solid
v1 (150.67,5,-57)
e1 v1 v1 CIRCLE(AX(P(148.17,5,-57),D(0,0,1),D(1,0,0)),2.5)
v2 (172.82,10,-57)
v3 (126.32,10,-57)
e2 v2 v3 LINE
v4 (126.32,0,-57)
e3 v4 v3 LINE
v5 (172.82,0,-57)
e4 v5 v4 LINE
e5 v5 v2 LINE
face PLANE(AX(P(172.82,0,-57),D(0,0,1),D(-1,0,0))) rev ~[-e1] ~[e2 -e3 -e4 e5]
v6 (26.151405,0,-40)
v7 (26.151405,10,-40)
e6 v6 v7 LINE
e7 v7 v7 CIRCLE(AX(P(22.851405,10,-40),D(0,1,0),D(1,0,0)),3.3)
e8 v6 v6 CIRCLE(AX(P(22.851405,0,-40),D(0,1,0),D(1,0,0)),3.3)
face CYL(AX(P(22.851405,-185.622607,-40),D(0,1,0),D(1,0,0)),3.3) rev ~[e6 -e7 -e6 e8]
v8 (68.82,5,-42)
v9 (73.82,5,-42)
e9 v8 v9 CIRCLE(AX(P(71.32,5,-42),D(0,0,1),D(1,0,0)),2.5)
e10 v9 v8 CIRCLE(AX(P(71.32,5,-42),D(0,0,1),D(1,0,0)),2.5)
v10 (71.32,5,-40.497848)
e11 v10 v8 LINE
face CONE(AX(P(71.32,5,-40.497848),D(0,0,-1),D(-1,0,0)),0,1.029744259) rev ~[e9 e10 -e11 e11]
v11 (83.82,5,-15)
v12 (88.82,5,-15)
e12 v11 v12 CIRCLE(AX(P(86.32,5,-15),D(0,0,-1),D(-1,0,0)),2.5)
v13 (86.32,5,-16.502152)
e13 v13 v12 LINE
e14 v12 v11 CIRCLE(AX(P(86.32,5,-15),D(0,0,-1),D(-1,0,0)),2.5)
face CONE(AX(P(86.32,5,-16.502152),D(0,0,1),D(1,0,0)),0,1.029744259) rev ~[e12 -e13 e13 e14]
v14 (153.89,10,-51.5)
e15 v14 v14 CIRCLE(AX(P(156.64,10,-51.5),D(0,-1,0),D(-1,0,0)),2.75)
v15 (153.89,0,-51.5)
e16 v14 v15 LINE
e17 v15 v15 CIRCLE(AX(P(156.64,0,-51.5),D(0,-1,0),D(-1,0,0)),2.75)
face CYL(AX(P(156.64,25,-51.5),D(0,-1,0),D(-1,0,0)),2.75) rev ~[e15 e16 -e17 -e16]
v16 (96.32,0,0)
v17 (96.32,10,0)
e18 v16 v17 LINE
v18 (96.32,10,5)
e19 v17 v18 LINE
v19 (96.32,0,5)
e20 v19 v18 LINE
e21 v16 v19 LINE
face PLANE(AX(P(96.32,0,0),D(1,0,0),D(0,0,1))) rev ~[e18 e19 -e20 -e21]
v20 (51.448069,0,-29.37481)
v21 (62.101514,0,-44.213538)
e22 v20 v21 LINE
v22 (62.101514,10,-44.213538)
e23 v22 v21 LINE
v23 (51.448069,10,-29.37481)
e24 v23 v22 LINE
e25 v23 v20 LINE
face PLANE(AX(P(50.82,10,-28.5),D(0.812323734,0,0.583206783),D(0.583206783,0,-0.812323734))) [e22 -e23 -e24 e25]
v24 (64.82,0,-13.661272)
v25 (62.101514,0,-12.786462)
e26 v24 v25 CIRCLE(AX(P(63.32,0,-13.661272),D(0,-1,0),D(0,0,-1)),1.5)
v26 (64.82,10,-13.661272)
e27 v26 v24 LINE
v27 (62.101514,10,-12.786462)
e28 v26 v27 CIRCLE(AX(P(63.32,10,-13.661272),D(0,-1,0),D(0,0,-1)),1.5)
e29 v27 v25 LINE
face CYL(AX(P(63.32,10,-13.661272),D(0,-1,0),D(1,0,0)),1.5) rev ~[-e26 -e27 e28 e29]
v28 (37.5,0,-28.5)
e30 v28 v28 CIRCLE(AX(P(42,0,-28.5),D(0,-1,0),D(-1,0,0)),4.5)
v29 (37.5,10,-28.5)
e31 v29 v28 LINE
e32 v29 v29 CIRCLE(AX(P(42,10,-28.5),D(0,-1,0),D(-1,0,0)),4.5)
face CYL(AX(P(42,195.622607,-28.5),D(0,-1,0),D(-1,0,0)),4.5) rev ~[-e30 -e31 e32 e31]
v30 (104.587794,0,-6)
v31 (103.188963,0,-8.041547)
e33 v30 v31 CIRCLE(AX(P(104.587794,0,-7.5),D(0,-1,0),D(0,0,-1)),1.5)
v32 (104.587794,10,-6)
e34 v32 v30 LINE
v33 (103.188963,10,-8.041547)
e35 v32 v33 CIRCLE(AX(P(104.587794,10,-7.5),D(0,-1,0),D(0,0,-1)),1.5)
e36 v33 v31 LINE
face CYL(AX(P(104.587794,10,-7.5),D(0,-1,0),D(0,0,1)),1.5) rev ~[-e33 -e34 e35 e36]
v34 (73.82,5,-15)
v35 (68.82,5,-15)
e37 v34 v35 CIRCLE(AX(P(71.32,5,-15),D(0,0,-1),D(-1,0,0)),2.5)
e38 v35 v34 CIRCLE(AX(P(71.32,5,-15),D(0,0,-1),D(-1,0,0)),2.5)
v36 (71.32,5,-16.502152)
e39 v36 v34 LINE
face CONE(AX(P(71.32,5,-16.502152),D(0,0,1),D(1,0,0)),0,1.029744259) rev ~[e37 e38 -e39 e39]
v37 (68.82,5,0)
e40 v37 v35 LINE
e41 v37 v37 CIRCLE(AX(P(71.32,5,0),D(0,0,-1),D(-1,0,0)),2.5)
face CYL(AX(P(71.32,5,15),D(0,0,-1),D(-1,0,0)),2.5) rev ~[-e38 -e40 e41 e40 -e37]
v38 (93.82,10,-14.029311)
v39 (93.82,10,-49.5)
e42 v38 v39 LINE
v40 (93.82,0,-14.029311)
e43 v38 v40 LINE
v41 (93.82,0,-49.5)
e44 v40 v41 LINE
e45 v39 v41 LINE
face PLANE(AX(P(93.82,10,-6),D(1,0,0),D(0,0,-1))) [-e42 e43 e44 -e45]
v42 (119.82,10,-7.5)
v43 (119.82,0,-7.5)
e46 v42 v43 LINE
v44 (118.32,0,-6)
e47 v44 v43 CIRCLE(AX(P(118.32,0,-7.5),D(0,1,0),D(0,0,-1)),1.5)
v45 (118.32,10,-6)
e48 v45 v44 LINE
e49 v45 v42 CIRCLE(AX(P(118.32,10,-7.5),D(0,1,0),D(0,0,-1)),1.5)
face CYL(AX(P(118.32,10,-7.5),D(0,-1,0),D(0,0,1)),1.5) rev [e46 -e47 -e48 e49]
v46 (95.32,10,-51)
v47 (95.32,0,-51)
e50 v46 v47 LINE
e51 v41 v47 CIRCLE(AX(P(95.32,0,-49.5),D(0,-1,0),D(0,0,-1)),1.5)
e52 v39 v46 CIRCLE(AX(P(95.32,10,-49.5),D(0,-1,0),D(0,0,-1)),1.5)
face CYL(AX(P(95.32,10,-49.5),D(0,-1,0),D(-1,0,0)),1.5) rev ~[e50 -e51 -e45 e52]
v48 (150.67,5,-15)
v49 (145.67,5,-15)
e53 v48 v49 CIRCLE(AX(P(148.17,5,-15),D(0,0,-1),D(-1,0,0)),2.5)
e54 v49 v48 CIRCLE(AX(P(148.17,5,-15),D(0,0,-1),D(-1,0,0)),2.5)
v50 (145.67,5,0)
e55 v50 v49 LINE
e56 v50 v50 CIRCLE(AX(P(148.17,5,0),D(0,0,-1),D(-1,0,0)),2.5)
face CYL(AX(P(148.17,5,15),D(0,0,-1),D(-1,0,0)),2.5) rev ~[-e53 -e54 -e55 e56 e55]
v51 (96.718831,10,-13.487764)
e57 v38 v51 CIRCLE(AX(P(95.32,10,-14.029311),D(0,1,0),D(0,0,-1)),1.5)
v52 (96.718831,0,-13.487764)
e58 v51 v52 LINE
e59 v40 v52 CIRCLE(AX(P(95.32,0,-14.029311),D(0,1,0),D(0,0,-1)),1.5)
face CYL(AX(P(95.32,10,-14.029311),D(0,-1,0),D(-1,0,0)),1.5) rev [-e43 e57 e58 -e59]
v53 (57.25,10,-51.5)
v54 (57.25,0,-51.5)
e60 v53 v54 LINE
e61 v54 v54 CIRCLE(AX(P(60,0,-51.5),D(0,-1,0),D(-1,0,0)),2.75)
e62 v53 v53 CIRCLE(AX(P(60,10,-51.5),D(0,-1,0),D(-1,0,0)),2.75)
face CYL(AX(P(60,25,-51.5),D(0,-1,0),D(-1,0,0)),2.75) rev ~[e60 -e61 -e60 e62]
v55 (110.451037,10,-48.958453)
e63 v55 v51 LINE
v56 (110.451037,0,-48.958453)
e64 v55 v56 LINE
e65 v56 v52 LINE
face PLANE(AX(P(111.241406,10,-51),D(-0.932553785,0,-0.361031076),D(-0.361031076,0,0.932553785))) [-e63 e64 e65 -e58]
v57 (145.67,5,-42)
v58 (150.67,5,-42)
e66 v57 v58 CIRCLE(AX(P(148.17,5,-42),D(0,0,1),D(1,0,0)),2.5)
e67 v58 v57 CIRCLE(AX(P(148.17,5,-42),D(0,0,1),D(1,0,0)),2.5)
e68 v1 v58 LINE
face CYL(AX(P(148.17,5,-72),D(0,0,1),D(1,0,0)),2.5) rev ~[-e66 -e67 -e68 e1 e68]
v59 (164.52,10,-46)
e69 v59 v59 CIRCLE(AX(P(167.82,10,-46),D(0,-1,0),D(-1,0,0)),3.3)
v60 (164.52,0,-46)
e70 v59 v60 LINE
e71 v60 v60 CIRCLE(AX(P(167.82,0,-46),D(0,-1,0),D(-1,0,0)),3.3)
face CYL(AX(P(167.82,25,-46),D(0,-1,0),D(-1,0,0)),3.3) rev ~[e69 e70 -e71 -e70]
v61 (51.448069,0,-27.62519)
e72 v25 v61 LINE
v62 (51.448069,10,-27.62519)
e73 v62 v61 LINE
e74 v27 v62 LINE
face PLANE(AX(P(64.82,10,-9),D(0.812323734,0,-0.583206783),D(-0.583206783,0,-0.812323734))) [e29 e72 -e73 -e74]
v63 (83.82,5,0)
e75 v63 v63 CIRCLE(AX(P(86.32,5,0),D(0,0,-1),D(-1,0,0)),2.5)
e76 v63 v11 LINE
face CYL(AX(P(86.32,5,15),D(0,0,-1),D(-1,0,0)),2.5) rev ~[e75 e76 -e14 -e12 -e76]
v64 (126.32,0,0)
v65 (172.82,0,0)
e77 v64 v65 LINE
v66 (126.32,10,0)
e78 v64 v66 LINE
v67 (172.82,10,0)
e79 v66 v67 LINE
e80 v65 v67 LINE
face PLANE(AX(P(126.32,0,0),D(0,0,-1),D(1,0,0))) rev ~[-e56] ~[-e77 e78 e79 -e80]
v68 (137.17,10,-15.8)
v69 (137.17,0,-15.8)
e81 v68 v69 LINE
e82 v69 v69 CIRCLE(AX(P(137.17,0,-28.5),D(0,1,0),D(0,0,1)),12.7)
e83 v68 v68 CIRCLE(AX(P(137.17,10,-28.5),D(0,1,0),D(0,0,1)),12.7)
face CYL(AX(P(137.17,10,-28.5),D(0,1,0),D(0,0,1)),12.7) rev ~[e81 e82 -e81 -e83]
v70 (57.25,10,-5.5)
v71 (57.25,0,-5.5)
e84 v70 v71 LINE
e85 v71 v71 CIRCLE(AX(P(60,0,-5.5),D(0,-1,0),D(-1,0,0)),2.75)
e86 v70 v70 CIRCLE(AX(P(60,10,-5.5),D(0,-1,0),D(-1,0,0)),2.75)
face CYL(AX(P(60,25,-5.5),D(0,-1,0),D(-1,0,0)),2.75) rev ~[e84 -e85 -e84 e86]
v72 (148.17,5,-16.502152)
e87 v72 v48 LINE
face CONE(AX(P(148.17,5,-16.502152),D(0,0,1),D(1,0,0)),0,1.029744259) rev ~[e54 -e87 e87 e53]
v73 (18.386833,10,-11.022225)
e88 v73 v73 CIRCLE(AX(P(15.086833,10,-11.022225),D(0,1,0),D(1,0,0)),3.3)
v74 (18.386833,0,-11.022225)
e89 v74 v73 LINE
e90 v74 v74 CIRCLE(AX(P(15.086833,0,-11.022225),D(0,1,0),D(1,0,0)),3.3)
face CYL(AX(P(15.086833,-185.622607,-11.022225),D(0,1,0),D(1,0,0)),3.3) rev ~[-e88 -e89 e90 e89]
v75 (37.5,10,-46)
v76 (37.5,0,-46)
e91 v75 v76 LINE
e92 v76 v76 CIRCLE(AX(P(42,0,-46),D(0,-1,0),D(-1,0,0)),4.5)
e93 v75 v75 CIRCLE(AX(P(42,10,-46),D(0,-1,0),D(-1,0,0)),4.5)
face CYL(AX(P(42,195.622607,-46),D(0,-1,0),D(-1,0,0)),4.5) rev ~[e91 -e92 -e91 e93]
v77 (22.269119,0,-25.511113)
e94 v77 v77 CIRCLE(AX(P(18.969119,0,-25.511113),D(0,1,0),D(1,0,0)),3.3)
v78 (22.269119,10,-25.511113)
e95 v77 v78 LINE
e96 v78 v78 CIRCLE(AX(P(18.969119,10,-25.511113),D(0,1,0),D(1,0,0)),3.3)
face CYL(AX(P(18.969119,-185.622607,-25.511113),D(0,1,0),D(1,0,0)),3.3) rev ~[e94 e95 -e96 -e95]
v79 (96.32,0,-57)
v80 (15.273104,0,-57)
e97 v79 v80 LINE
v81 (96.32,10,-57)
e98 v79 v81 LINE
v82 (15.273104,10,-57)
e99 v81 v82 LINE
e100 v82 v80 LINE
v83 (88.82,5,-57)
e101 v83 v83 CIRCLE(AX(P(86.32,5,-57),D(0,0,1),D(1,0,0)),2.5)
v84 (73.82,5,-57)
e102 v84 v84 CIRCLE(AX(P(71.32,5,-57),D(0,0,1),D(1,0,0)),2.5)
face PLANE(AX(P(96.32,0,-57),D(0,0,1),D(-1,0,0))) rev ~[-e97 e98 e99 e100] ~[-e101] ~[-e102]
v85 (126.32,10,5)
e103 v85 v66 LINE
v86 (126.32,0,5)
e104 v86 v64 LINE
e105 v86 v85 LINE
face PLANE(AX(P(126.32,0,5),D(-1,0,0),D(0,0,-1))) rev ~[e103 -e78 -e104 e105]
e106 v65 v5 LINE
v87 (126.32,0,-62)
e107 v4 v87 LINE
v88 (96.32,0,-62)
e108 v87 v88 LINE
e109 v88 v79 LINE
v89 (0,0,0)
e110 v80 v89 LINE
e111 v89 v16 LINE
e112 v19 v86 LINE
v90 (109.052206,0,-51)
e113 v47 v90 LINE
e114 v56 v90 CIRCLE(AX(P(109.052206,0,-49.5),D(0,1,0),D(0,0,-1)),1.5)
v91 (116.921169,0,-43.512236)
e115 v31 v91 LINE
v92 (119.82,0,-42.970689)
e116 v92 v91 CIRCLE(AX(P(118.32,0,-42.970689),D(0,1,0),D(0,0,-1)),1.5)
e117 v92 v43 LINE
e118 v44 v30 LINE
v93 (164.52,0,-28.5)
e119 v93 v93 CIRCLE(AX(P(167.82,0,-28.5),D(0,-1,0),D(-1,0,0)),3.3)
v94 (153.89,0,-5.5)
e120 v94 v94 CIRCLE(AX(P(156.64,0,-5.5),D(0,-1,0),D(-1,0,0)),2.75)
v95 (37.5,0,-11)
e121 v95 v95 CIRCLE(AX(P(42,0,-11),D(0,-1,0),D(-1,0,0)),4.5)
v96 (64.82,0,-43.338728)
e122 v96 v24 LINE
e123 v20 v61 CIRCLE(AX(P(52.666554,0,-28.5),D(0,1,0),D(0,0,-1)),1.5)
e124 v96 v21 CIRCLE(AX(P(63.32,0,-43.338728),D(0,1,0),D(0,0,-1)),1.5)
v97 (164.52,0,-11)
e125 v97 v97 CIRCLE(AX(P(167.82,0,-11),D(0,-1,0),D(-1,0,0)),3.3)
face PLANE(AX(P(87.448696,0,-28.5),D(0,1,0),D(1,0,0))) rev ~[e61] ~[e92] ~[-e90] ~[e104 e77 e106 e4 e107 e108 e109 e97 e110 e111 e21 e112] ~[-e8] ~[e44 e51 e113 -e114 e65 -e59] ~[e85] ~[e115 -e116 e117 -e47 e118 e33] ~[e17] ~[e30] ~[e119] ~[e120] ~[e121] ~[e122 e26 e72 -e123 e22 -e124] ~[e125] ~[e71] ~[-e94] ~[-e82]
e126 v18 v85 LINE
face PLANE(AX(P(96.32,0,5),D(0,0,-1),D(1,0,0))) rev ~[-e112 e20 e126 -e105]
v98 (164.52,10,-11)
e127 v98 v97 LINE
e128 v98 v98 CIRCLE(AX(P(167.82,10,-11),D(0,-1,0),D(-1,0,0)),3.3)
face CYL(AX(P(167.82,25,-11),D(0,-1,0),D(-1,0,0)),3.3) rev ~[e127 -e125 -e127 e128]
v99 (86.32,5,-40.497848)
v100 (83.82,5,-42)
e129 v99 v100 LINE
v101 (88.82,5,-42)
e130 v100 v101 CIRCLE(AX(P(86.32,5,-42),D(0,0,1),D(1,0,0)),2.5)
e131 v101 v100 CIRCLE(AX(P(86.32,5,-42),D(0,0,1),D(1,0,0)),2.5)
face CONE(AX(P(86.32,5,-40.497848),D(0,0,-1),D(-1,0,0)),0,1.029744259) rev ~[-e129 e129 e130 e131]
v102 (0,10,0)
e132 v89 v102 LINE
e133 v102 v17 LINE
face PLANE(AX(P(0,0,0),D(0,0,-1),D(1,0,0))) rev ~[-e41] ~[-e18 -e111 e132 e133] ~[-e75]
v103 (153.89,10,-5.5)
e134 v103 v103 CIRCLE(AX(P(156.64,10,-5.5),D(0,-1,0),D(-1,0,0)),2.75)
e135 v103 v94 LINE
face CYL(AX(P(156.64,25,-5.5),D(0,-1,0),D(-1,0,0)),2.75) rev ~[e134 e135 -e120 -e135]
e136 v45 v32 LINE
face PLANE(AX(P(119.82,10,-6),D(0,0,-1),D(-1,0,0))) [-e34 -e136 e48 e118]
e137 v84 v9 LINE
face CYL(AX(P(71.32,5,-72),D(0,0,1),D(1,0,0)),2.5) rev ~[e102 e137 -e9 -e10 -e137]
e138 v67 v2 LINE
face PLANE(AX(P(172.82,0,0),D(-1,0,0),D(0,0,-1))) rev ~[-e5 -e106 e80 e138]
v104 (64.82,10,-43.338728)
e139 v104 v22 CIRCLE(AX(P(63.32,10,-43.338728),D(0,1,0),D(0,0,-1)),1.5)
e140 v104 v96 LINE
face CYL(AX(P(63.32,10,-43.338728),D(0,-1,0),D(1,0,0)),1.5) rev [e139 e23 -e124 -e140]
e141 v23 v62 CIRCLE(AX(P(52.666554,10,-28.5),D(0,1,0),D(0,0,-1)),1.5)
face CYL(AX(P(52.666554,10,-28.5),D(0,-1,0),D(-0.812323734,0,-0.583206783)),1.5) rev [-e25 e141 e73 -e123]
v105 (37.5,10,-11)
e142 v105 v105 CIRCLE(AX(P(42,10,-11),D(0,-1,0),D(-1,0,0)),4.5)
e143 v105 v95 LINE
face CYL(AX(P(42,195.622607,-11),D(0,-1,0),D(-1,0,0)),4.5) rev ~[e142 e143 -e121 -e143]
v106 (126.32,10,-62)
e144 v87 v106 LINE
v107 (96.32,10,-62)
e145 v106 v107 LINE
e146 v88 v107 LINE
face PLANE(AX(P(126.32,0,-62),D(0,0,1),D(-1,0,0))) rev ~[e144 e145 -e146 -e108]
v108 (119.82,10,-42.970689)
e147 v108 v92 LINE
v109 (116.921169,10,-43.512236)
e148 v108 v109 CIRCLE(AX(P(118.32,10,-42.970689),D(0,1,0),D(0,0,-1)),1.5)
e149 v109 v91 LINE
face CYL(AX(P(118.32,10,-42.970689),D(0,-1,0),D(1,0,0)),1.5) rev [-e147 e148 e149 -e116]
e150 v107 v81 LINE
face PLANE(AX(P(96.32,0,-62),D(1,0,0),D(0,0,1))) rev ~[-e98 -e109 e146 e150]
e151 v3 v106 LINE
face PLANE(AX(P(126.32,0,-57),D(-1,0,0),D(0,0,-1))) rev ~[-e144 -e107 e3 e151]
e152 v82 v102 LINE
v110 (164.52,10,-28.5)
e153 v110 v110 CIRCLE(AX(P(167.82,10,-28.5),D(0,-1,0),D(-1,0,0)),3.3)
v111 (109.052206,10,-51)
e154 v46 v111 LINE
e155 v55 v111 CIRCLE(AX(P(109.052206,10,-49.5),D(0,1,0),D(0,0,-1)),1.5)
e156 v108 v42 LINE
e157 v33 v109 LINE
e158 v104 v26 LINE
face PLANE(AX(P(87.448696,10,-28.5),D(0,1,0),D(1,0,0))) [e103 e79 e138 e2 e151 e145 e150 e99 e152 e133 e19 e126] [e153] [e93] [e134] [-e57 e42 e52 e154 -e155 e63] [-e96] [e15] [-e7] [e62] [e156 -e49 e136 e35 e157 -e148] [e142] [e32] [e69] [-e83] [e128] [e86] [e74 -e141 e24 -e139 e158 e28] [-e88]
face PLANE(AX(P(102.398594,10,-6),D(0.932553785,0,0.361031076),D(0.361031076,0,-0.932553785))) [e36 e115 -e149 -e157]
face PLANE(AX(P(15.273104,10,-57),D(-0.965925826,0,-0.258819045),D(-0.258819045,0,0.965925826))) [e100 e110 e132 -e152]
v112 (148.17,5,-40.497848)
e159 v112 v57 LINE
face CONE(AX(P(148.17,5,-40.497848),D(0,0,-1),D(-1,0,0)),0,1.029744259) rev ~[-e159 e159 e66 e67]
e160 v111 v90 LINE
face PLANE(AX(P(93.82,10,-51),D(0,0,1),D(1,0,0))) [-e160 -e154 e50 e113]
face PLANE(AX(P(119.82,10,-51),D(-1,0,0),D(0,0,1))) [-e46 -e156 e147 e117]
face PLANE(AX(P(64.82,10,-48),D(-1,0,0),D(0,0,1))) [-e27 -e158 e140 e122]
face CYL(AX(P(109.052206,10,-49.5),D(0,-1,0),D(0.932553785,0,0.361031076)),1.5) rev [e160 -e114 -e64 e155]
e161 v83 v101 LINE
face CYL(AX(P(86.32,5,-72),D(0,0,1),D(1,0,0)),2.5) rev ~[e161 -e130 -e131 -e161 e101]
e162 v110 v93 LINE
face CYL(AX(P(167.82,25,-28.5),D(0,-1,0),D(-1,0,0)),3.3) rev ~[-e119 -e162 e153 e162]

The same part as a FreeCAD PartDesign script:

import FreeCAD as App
import Part
import Sketcher
Q = App.Units.Quantity


def edges_at(feature, points):
    """Names of the edges that pass closest to the given points."""
    edges = feature.Shape.Edges
    near = lambda p: min(range(len(edges)), key=lambda i: edges[i].distToShape(Part.Vertex(*p))[0])
    return sorted({f"Edge{near(p) + 1}" for p in points})

doc = App.newDocument("Part")
params = doc.addObject("Spreadsheet::Sheet", "Params")
for row, (alias, value) in enumerate([
    ("sketch1_width", "30 mm"),
    ("sketch1_height", "5 mm"),
    ("sketch1_height2", "57 mm"),
    ("sketch1_width2", "46.5 mm"),
    ("sketch1_width3", "96.32 mm"),
    ("pad1_length", "10 mm"),
    ("sketch2_diameter", "6.6 mm"),
    ("hole_diameter", "6.6 mm"),
    ("hole_depth", "15 mm"),
    ("sketch3_diameter", "19.05 mm"),
    ("sketch4_diameter", "25.4 mm"),
    ("sketch5_diameter", "5 mm"),
    ("hole2_diameter", "5 mm"),
    ("hole2_depth", "15 mm"),
    ("sketch6_diameter", "5 mm"),
    ("hole3_diameter", "5 mm"),
    ("hole3_depth", "15 mm"),
    ("sketch7_diameter", "9 mm"),
    ("hole4_diameter", "9 mm"),
    ("sketch8_diameter", "5.5 mm"),
    ("hole5_diameter", "5.5 mm"),
    ("hole5_depth", "15 mm"),
    ("sketch9_height", "57 mm"),
    ("sketch10_diameter", "6.6 mm"),
    ("hole6_diameter", "6.6 mm"),
    ("sketch11_height", "39 mm"),
    ("sketch11_height2", "45 mm"),
    ("fillet_radius", "1.5 mm"),
], start=1):
    params.set(f"A{row}", alias)
    params.set(f"B{row}", "=" + value)
    params.setAlias(f"B{row}", alias)

body = doc.addObject("PartDesign::Body", "Body")

# Sketch on XZ plane
sketch1 = body.newObject("Sketcher::SketchObject", "Sketch")
sketch1.AttachmentSupport = (doc.getObject("XZ_Plane"), [""])
sketch1.MapMode = "FlatFace"
sketch1.addGeometry(Part.LineSegment(App.Vector(0, 0, 0), App.Vector(96, 0, 0)), False)
sketch1.addGeometry(Part.LineSegment(App.Vector(96, 0, 0), App.Vector(96, 5, 0)), False)
sketch1.addGeometry(Part.LineSegment(App.Vector(96, 5, 0), App.Vector(126, 5, 0)), False)
sketch1.addGeometry(Part.LineSegment(App.Vector(126, 5, 0), App.Vector(126, 0, 0)), False)
sketch1.addGeometry(Part.LineSegment(App.Vector(126, 0, 0), App.Vector(173, 0, 0)), False)
sketch1.addGeometry(Part.LineSegment(App.Vector(173, 0, 0), App.Vector(173, -57, 0)), False)
sketch1.addGeometry(Part.LineSegment(App.Vector(173, -57, 0), App.Vector(126, -57, 0)), False)
sketch1.addGeometry(Part.LineSegment(App.Vector(126, -57, 0), App.Vector(126, -62, 0)), False)
sketch1.addGeometry(Part.LineSegment(App.Vector(126, -62, 0), App.Vector(96, -62, 0)), False)
sketch1.addGeometry(Part.LineSegment(App.Vector(96, -62, 0), App.Vector(96, -57, 0)), False)
sketch1.addGeometry(Part.LineSegment(App.Vector(96, -57, 0), App.Vector(0, -57, 0)), False)
sketch1.addGeometry(Part.LineSegment(App.Vector(0, -57, 0), App.Vector(0, 0, 0)), False)
sketch1.addConstraint(Sketcher.Constraint("Coincident", 0, 2, 1, 1))
sketch1.addConstraint(Sketcher.Constraint("Coincident", 1, 2, 2, 1))
sketch1.addConstraint(Sketcher.Constraint("Coincident", 2, 2, 3, 1))
sketch1.addConstraint(Sketcher.Constraint("Coincident", 3, 2, 4, 1))
sketch1.addConstraint(Sketcher.Constraint("Coincident", 4, 2, 5, 1))
sketch1.addConstraint(Sketcher.Constraint("Coincident", 5, 2, 6, 1))
sketch1.addConstraint(Sketcher.Constraint("Coincident", 6, 2, 7, 1))
sketch1.addConstraint(Sketcher.Constraint("Coincident", 7, 2, 8, 1))
sketch1.addConstraint(Sketcher.Constraint("Coincident", 8, 2, 9, 1))
sketch1.addConstraint(Sketcher.Constraint("Coincident", 9, 2, 10, 1))
sketch1.addConstraint(Sketcher.Constraint("Coincident", 10, 2, 11, 1))
sketch1.addConstraint(Sketcher.Constraint("Coincident", 11, 2, 0, 1))
sketch1.addConstraint(Sketcher.Constraint("Horizontal", 0))
sketch1.addConstraint(Sketcher.Constraint("Vertical", 1))
sketch1.addConstraint(Sketcher.Constraint("Horizontal", 2))
sketch1.addConstraint(Sketcher.Constraint("Vertical", 3))
sketch1.addConstraint(Sketcher.Constraint("Horizontal", 4))
sketch1.addConstraint(Sketcher.Constraint("Vertical", 5))
sketch1.addConstraint(Sketcher.Constraint("Horizontal", 6))
sketch1.addConstraint(Sketcher.Constraint("Vertical", 7))
sketch1.addConstraint(Sketcher.Constraint("Horizontal", 8))
sketch1.addConstraint(Sketcher.Constraint("Vertical", 9))
sketch1.addConstraint(Sketcher.Constraint("Horizontal", 10))
sketch1.addConstraint(Sketcher.Constraint("Vertical", 11))
sketch1.addConstraint(Sketcher.Constraint("Coincident", 11, 2, -1, 1))
sketch1.addConstraint(Sketcher.Constraint("PointOnObject", 3, 2, -1))
sketch1.addConstraint(Sketcher.Constraint("Horizontal", 6, 2, 9, 2))
sketch1.addConstraint(Sketcher.Constraint("Vertical", 3, 2, 6, 2))
sketch1.addConstraint(Sketcher.Constraint("Vertical", 1, 2, 8, 2))
sketch1.addConstraint(Sketcher.Constraint("Equal", 3, 7))
sketch1.addConstraint(Sketcher.Constraint("DistanceX", 2, 1, 2, 2, 30.0))
sketch1.addConstraint(Sketcher.Constraint("DistanceY", 1, 1, 1, 2, 5.0))
sketch1.addConstraint(Sketcher.Constraint("DistanceY", 5, 2, 5, 1, 57.0))
sketch1.addConstraint(Sketcher.Constraint("DistanceX", 4, 1, 4, 2, 46.5))
sketch1.addConstraint(Sketcher.Constraint("DistanceX", 0, 1, 0, 2, 96.32))
sketch1.setExpression("Constraints[30]", "Params.sketch1_width")
sketch1.setExpression("Constraints[31]", "Params.sketch1_height")
sketch1.setExpression("Constraints[32]", "Params.sketch1_height2")
sketch1.setExpression("Constraints[33]", "Params.sketch1_width2")
sketch1.setExpression("Constraints[34]", "Params.sketch1_width3")
pad1 = body.newObject("PartDesign::Pad", "Pad")
pad1.Profile = sketch1
pad1.setExpression("Length", "Params.pad1_length")
pad1.Reversed = True

# Sketch on XZ plane
sketch2 = body.newObject("Sketcher::SketchObject", "Sketch001")
sketch2.AttachmentSupport = (doc.getObject("XZ_Plane"), [""])
sketch2.MapMode = "FlatFace"
sketch2.AttachmentOffset = App.Placement(App.Vector(0, 0, -10), App.Rotation())
sketch2.addGeometry(Part.Circle(App.Vector(167.8, -46, 0), App.Vector(0, 0, 1), 3.3), False)
sketch2.addGeometry(Part.Circle(App.Vector(167.8, -28.5, 0), App.Vector(0, 0, 1), 3.3), False)
sketch2.addGeometry(Part.Circle(App.Vector(167.8, -11, 0), App.Vector(0, 0, 1), 3.3), False)
sketch2.addConstraint(Sketcher.Constraint("Equal", 0, 1))
sketch2.addConstraint(Sketcher.Constraint("Equal", 1, 2))
sketch2.addConstraint(Sketcher.Constraint("Vertical", 0, 3, 1, 3))
sketch2.addConstraint(Sketcher.Constraint("Vertical", 1, 3, 2, 3))
sketch2.addConstraint(Sketcher.Constraint("Diameter", 0, 6.6))
sketch2.addConstraint(Sketcher.Constraint("DistanceY", 0, 3, -1, 1, 46.0))
sketch2.addConstraint(Sketcher.Constraint("DistanceY", 2, 3, -1, 1, 11.0))
sketch2.addConstraint(Sketcher.Constraint("DistanceY", 1, 3, -1, 1, 28.5))
sketch2.addConstraint(Sketcher.Constraint("DistanceX", -1, 1, 0, 3, 167.82))
sketch2.setExpression("Constraints[4]", "Params.sketch2_diameter")
doc.recompute()
hole = body.newObject("PartDesign::Hole", "Hole")
hole.Profile = sketch2
hole.ThreadType = "None"
hole.setExpression("Diameter", "Params.hole_diameter")
hole.DepthType = "Dimension"
hole.setExpression("Depth", "Params.hole_depth")
hole.DrillPoint = "Angled"
hole.DrillPointAngle = 118
hole.Reversed = True

# Sketch on XZ plane
sketch3 = body.newObject("Sketcher::SketchObject", "Sketch002")
sketch3.AttachmentSupport = (doc.getObject("XZ_Plane"), [""])
sketch3.MapMode = "FlatFace"
sketch3.AttachmentOffset = App.Placement(App.Vector(0, 0, -10), App.Rotation())
sketch3.addGeometry(Part.Circle(App.Vector(137, -28, 0), App.Vector(0, 0, 1), 10), False)
sketch3.addConstraint(Sketcher.Constraint("Diameter", 0, 19.05))
sketch3.addConstraint(Sketcher.Constraint("DistanceY", 0, 3, -1, 1, 28.5))
sketch3.addConstraint(Sketcher.Constraint("DistanceX", -1, 1, 0, 3, 137.17))
sketch3.setExpression("Constraints[0]", "Params.sketch3_diameter")
pocket1 = body.newObject("PartDesign::Pocket", "Pocket")
pocket1.Profile = sketch3
pocket1.Type = "ThroughAll"
pocket1.Reversed = True

# Sketch on XZ plane
sketch4 = body.newObject("Sketcher::SketchObject", "Sketch003")
sketch4.AttachmentSupport = (doc.getObject("XZ_Plane"), [""])
sketch4.MapMode = "FlatFace"
sketch4.AttachmentOffset = App.Placement(App.Vector(0, 0, -10), App.Rotation())
sketch4.addGeometry(Part.Circle(App.Vector(137, -28, 0), App.Vector(0, 0, 1), 13), False)
sketch4.addConstraint(Sketcher.Constraint("Diameter", 0, 25.4))
sketch4.addConstraint(Sketcher.Constraint("DistanceY", 0, 3, -1, 1, 28.5))
sketch4.addConstraint(Sketcher.Constraint("DistanceX", -1, 1, 0, 3, 137.17))
sketch4.setExpression("Constraints[0]", "Params.sketch4_diameter")
pocket2 = body.newObject("PartDesign::Pocket", "Pocket001")
pocket2.Profile = sketch4
pocket2.Type = "ThroughAll"
pocket2.Reversed = True

# Sketch on XY plane
sketch5 = body.newObject("Sketcher::SketchObject", "Sketch004")
sketch5.AttachmentSupport = (doc.getObject("XY_Plane"), [""])
sketch5.MapMode = "FlatFace"
sketch5.AttachmentOffset = App.Placement(App.Vector(0, 0, -57), App.Rotation())
sketch5.addGeometry(Part.Circle(App.Vector(148.2, 5, 0), App.Vector(0, 0, 1), 2.5), False)
sketch5.addGeometry(Part.Circle(App.Vector(86.3, 5, 0), App.Vector(0, 0, 1), 2.5), False)
sketch5.addGeometry(Part.Circle(App.Vector(71.3, 5, 0), App.Vector(0, 0, 1), 2.5), False)
sketch5.addConstraint(Sketcher.Constraint("Equal", 0, 1))
sketch5.addConstraint(Sketcher.Constraint("Equal", 1, 2))
sketch5.addConstraint(Sketcher.Constraint("Horizontal", 0, 3, 1, 3))
sketch5.addConstraint(Sketcher.Constraint("Horizontal", 1, 3, 2, 3))
sketch5.addConstraint(Sketcher.Constraint("Diameter", 0, 5.0))
sketch5.addConstraint(Sketcher.Constraint("DistanceY", -1, 1, 0, 3, 5.0))
sketch5.addConstraint(Sketcher.Constraint("DistanceX", 2, 3, 1, 3, 15.0))
sketch5.addConstraint(Sketcher.Constraint("DistanceX", -1, 1, 0, 3, 148.17))
sketch5.addConstraint(Sketcher.Constraint("DistanceX", -1, 1, 1, 3, 86.32))
sketch5.setExpression("Constraints[4]", "Params.sketch5_diameter")
doc.recompute()
hole2 = body.newObject("PartDesign::Hole", "Hole001")
hole2.Profile = sketch5
hole2.ThreadType = "None"
hole2.setExpression("Diameter", "Params.hole2_diameter")
hole2.DepthType = "Dimension"
hole2.setExpression("Depth", "Params.hole2_depth")
hole2.DrillPoint = "Angled"
hole2.DrillPointAngle = 118
hole2.Reversed = True

# Sketch on XY plane
sketch6 = body.newObject("Sketcher::SketchObject", "Sketch005")
sketch6.AttachmentSupport = (doc.getObject("XY_Plane"), [""])
sketch6.MapMode = "FlatFace"
sketch6.addGeometry(Part.Circle(App.Vector(86.3, 5, 0), App.Vector(0, 0, 1), 2.5), False)
sketch6.addGeometry(Part.Circle(App.Vector(148.2, 5, 0), App.Vector(0, 0, 1), 2.5), False)
sketch6.addGeometry(Part.Circle(App.Vector(71.3, 5, 0), App.Vector(0, 0, 1), 2.5), False)
sketch6.addConstraint(Sketcher.Constraint("Equal", 0, 1))
sketch6.addConstraint(Sketcher.Constraint("Equal", 1, 2))
sketch6.addConstraint(Sketcher.Constraint("Horizontal", 0, 3, 1, 3))
sketch6.addConstraint(Sketcher.Constraint("Horizontal", 1, 3, 2, 3))
sketch6.addConstraint(Sketcher.Constraint("Diameter", 0, 5.0))
sketch6.addConstraint(Sketcher.Constraint("DistanceY", -1, 1, 0, 3, 5.0))
sketch6.addConstraint(Sketcher.Constraint("DistanceX", 2, 3, 0, 3, 15.0))
sketch6.addConstraint(Sketcher.Constraint("DistanceX", -1, 1, 0, 3, 86.32))
sketch6.addConstraint(Sketcher.Constraint("DistanceX", -1, 1, 1, 3, 148.17))
sketch6.setExpression("Constraints[4]", "Params.sketch6_diameter")
doc.recompute()
hole3 = body.newObject("PartDesign::Hole", "Hole002")
hole3.Profile = sketch6
hole3.ThreadType = "None"
hole3.setExpression("Diameter", "Params.hole3_diameter")
hole3.DepthType = "Dimension"
hole3.setExpression("Depth", "Params.hole3_depth")
hole3.DrillPoint = "Angled"
hole3.DrillPointAngle = 118

# Sketch on XZ plane
sketch7 = body.newObject("Sketcher::SketchObject", "Sketch006")
sketch7.AttachmentSupport = (doc.getObject("XZ_Plane"), [""])
sketch7.MapMode = "FlatFace"
sketch7.AttachmentOffset = App.Placement(App.Vector(0, 0, -10), App.Rotation())
sketch7.addGeometry(Part.Circle(App.Vector(42, -46, 0), App.Vector(0, 0, 1), 4.5), False)
sketch7.addGeometry(Part.Circle(App.Vector(42, -28.5, 0), App.Vector(0, 0, 1), 4.5), False)
sketch7.addGeometry(Part.Circle(App.Vector(42, -11, 0), App.Vector(0, 0, 1), 4.5), False)
sketch7.addConstraint(Sketcher.Constraint("Equal", 0, 1))
sketch7.addConstraint(Sketcher.Constraint("Equal", 1, 2))
sketch7.addConstraint(Sketcher.Constraint("Vertical", 0, 3, 1, 3))
sketch7.addConstraint(Sketcher.Constraint("Vertical", 1, 3, 2, 3))
sketch7.addConstraint(Sketcher.Constraint("Diameter", 0, 9.0))
sketch7.addConstraint(Sketcher.Constraint("DistanceX", -1, 1, 0, 3, 42.0))
sketch7.addConstraint(Sketcher.Constraint("DistanceY", 0, 3, -1, 1, 46.0))
sketch7.addConstraint(Sketcher.Constraint("DistanceY", 2, 3, -1, 1, 11.0))
sketch7.addConstraint(Sketcher.Constraint("DistanceY", 1, 3, -1, 1, 28.5))
sketch7.setExpression("Constraints[4]", "Params.sketch7_diameter")
doc.recompute()
hole4 = body.newObject("PartDesign::Hole", "Hole003")
hole4.Profile = sketch7
hole4.ThreadType = "None"
hole4.setExpression("Diameter", "Params.hole4_diameter")
hole4.DepthType = "ThroughAll"
hole4.Reversed = True

# Sketch on XZ plane
sketch8 = body.newObject("Sketcher::SketchObject", "Sketch007")
sketch8.AttachmentSupport = (doc.getObject("XZ_Plane"), [""])
sketch8.MapMode = "FlatFace"
sketch8.AttachmentOffset = App.Placement(App.Vector(0, 0, -10), App.Rotation())
sketch8.addGeometry(Part.Circle(App.Vector(156.6, -51.5, 0), App.Vector(0, 0, 1), 2.8), False)
sketch8.addGeometry(Part.Circle(App.Vector(156.6, -5.5, 0), App.Vector(0, 0, 1), 2.8), False)
sketch8.addGeometry(Part.Circle(App.Vector(60, -5.5, 0), App.Vector(0, 0, 1), 2.8), False)
sketch8.addGeometry(Part.Circle(App.Vector(60, -51.5, 0), App.Vector(0, 0, 1), 2.8), False)
sketch8.addConstraint(Sketcher.Constraint("Equal", 0, 1))
sketch8.addConstraint(Sketcher.Constraint("Equal", 1, 2))
sketch8.addConstraint(Sketcher.Constraint("Equal", 2, 3))
sketch8.addConstraint(Sketcher.Constraint("Horizontal", 1, 3, 2, 3))
sketch8.addConstraint(Sketcher.Constraint("Horizontal", 0, 3, 3, 3))
sketch8.addConstraint(Sketcher.Constraint("Vertical", 0, 3, 1, 3))
sketch8.addConstraint(Sketcher.Constraint("Vertical", 2, 3, 3, 3))
sketch8.addConstraint(Sketcher.Constraint("Diameter", 0, 5.5))
sketch8.addConstraint(Sketcher.Constraint("DistanceX", -1, 1, 2, 3, 60.0))
sketch8.addConstraint(Sketcher.Constraint("DistanceY", 0, 3, 1, 3, 46.0))
sketch8.addConstraint(Sketcher.Constraint("DistanceY", 0, 3, -1, 1, 51.5))
sketch8.addConstraint(Sketcher.Constraint("DistanceX", -1, 1, 0, 3, 156.64))
sketch8.setExpression("Constraints[7]", "Params.sketch8_diameter")
doc.recompute()
hole5 = body.newObject("PartDesign::Hole", "Hole004")
hole5.Profile = sketch8
hole5.ThreadType = "None"
hole5.setExpression("Diameter", "Params.hole5_diameter")
hole5.DepthType = "Dimension"
hole5.setExpression("Depth", "Params.hole5_depth")
hole5.DrillPoint = "Angled"
hole5.DrillPointAngle = 118
hole5.Reversed = True

# Sketch on XZ plane
sketch9 = body.newObject("Sketcher::SketchObject", "Sketch008")
sketch9.AttachmentSupport = (doc.getObject("XZ_Plane"), [""])
sketch9.MapMode = "FlatFace"
sketch9.AttachmentOffset = App.Placement(App.Vector(0, 0, -10), App.Rotation())
sketch9.addGeometry(Part.LineSegment(App.Vector(0, -57, 0), App.Vector(0, 0, 0)), False)
sketch9.addGeometry(Part.LineSegment(App.Vector(0, 0, 0), App.Vector(15, -57, 0)), False)
sketch9.addGeometry(Part.LineSegment(App.Vector(15, -57, 0), App.Vector(0, -57, 0)), False)
sketch9.addConstraint(Sketcher.Constraint("Coincident", 0, 2, 1, 1))
sketch9.addConstraint(Sketcher.Constraint("Coincident", 1, 2, 2, 1))
sketch9.addConstraint(Sketcher.Constraint("Coincident", 2, 2, 0, 1))
sketch9.addConstraint(Sketcher.Constraint("Vertical", 0))
sketch9.addConstraint(Sketcher.Constraint("Horizontal", 2))
sketch9.addConstraint(Sketcher.Constraint("Coincident", 0, 2, -1, 1))
sketch9.addConstraint(Sketcher.Constraint("DistanceY", 0, 1, 0, 2, 57.0))
sketch9.addConstraint(Sketcher.Constraint("Angle", 1, Q("-75 deg")))
sketch9.setExpression("Constraints[6]", "Params.sketch9_height")
pocket3 = body.newObject("PartDesign::Pocket", "Pocket002")
pocket3.Profile = sketch9
pocket3.Type = "ThroughAll"
pocket3.Reversed = True

# Sketch on XZ plane
sketch10 = body.newObject("Sketcher::SketchObject", "Sketch009")
sketch10.AttachmentSupport = (doc.getObject("XZ_Plane"), [""])
sketch10.MapMode = "FlatFace"
sketch10.addGeometry(Part.Circle(App.Vector(22.9, -40, 0), App.Vector(0, 0, 1), 3.3), False)
sketch10.addGeometry(Part.Circle(App.Vector(15.1, -11, 0), App.Vector(0, 0, 1), 3.3), False)
sketch10.addGeometry(Part.Circle(App.Vector(19, -25.5, 0), App.Vector(0, 0, 1), 3.3), False)
sketch10.addConstraint(Sketcher.Constraint("Equal", 0, 1))
sketch10.addConstraint(Sketcher.Constraint("Equal", 1, 2))
sketch10.addConstraint(Sketcher.Constraint("Diameter", 0, 6.6))
sketch10.addConstraint(Sketcher.Constraint("DistanceY", 0, 3, -1, 1, 40.0))
sketch10.addConstraint(Sketcher.Constraint("DistanceX", -1, 1, 2, 3, 18.969119))
sketch10.addConstraint(Sketcher.Constraint("DistanceX", 1, 3, 0, 3, 7.764571))
sketch10.addConstraint(Sketcher.Constraint("DistanceX", -1, 1, 0, 3, 22.851405))
sketch10.addConstraint(Sketcher.Constraint("DistanceY", 1, 3, -1, 1, 11.022225))
sketch10.addConstraint(Sketcher.Constraint("DistanceY", 2, 3, -1, 1, 25.511113))
sketch10.setExpression("Constraints[2]", "Params.sketch10_diameter")
doc.recompute()
hole6 = body.newObject("PartDesign::Hole", "Hole005")
hole6.Profile = sketch10
hole6.ThreadType = "None"
hole6.setExpression("Diameter", "Params.hole6_diameter")
hole6.DepthType = "ThroughAll"

# Sketch on XZ plane
sketch11 = body.newObject("Sketcher::SketchObject", "Sketch010")
sketch11.AttachmentSupport = (doc.getObject("XZ_Plane"), [""])
sketch11.MapMode = "FlatFace"
sketch11.AttachmentOffset = App.Placement(App.Vector(0, 0, -10), App.Rotation())
sketch11.addGeometry(Part.LineSegment(App.Vector(51, -28, 0), App.Vector(65, -9, 0)), False)
sketch11.addGeometry(Part.LineSegment(App.Vector(65, -9, 0), App.Vector(65, -48, 0)), False)
sketch11.addGeometry(Part.LineSegment(App.Vector(65, -48, 0), App.Vector(51, -28, 0)), False)
sketch11.addGeometry(Part.LineSegment(App.Vector(111, -51, 0), App.Vector(94, -51, 0)), False)
sketch11.addGeometry(Part.LineSegment(App.Vector(94, -51, 0), App.Vector(94, -6, 0)), False)
sketch11.addGeometry(Part.LineSegment(App.Vector(94, -6, 0), App.Vector(111, -51, 0)), False)
sketch11.addGeometry(Part.LineSegment(App.Vector(120, -51, 0), App.Vector(102, -6, 0)), False)
sketch11.addGeometry(Part.LineSegment(App.Vector(102, -6, 0), App.Vector(120, -6, 0)), False)
sketch11.addGeometry(Part.LineSegment(App.Vector(120, -6, 0), App.Vector(120, -51, 0)), False)
sketch11.addConstraint(Sketcher.Constraint("Coincident", 0, 2, 1, 1))
sketch11.addConstraint(Sketcher.Constraint("Coincident", 1, 2, 2, 1))
sketch11.addConstraint(Sketcher.Constraint("Coincident", 2, 2, 0, 1))
sketch11.addConstraint(Sketcher.Constraint("Coincident", 3, 2, 4, 1))
sketch11.addConstraint(Sketcher.Constraint("Coincident", 4, 2, 5, 1))
sketch11.addConstraint(Sketcher.Constraint("Coincident", 5, 2, 3, 1))
sketch11.addConstraint(Sketcher.Constraint("Coincident", 6, 2, 7, 1))
sketch11.addConstraint(Sketcher.Constraint("Coincident", 7, 2, 8, 1))
sketch11.addConstraint(Sketcher.Constraint("Coincident", 8, 2, 6, 1))
sketch11.addConstraint(Sketcher.Constraint("Vertical", 1))
sketch11.addConstraint(Sketcher.Constraint("Horizontal", 3))
sketch11.addConstraint(Sketcher.Constraint("Vertical", 4))
sketch11.addConstraint(Sketcher.Constraint("Horizontal", 7))
sketch11.addConstraint(Sketcher.Constraint("Vertical", 8))
sketch11.addConstraint(Sketcher.Constraint("Parallel", 5, 6))
sketch11.addConstraint(Sketcher.Constraint("Horizontal", 4, 2, 6, 2))
sketch11.addConstraint(Sketcher.Constraint("Horizontal", 5, 2, 8, 2))
sketch11.addConstraint(Sketcher.Constraint("Equal", 0, 2))
sketch11.addConstraint(Sketcher.Constraint("DistanceY", 1, 2, 1, 1, 39.0))
sketch11.addConstraint(Sketcher.Constraint("DistanceY", 4, 1, 4, 2, 45.0))
sketch11.addConstraint(Sketcher.Constraint("DistanceY", 0, 2, -1, 1, 9.0))
sketch11.addConstraint(Sketcher.Constraint("DistanceY", 3, 2, -1, 1, 51.0))
sketch11.addConstraint(Sketcher.Constraint("DistanceX", 2, 2, 0, 2, 14.0))
sketch11.addConstraint(Sketcher.Constraint("DistanceX", 1, 2, 3, 2, 29.0))
sketch11.addConstraint(Sketcher.Constraint("DistanceX", 4, 2, 7, 2, 26.0))
sketch11.addConstraint(Sketcher.Constraint("DistanceX", -1, 1, 0, 2, 64.82))
sketch11.addConstraint(Sketcher.Constraint("Distance", 5, 48.254589))
sketch11.setExpression("Constraints[18]", "Params.sketch11_height")
sketch11.setExpression("Constraints[19]", "Params.sketch11_height2")
pocket4 = body.newObject("PartDesign::Pocket", "Pocket003")
pocket4.Profile = sketch11
pocket4.Type = "ThroughAll"
pocket4.Reversed = True
doc.recompute()

fillet = body.newObject("PartDesign::Fillet", "Fillet")
fillet.Base = (pocket4, edges_at(pocket4, [
    (64.82, 5, -48),
    (64.82, 5, -9),
    (50.82, 5, -28.5),
    (119.82, 5, -6),
    (102.399, 5, -6),
    (119.82, 5, -51),
    (93.82, 5, -6),
    (93.82, 5, -51),
    (111.241, 5, -51),
]))
fillet.setExpression("Radius", "Params.fillet_radius")

doc.recompute()
